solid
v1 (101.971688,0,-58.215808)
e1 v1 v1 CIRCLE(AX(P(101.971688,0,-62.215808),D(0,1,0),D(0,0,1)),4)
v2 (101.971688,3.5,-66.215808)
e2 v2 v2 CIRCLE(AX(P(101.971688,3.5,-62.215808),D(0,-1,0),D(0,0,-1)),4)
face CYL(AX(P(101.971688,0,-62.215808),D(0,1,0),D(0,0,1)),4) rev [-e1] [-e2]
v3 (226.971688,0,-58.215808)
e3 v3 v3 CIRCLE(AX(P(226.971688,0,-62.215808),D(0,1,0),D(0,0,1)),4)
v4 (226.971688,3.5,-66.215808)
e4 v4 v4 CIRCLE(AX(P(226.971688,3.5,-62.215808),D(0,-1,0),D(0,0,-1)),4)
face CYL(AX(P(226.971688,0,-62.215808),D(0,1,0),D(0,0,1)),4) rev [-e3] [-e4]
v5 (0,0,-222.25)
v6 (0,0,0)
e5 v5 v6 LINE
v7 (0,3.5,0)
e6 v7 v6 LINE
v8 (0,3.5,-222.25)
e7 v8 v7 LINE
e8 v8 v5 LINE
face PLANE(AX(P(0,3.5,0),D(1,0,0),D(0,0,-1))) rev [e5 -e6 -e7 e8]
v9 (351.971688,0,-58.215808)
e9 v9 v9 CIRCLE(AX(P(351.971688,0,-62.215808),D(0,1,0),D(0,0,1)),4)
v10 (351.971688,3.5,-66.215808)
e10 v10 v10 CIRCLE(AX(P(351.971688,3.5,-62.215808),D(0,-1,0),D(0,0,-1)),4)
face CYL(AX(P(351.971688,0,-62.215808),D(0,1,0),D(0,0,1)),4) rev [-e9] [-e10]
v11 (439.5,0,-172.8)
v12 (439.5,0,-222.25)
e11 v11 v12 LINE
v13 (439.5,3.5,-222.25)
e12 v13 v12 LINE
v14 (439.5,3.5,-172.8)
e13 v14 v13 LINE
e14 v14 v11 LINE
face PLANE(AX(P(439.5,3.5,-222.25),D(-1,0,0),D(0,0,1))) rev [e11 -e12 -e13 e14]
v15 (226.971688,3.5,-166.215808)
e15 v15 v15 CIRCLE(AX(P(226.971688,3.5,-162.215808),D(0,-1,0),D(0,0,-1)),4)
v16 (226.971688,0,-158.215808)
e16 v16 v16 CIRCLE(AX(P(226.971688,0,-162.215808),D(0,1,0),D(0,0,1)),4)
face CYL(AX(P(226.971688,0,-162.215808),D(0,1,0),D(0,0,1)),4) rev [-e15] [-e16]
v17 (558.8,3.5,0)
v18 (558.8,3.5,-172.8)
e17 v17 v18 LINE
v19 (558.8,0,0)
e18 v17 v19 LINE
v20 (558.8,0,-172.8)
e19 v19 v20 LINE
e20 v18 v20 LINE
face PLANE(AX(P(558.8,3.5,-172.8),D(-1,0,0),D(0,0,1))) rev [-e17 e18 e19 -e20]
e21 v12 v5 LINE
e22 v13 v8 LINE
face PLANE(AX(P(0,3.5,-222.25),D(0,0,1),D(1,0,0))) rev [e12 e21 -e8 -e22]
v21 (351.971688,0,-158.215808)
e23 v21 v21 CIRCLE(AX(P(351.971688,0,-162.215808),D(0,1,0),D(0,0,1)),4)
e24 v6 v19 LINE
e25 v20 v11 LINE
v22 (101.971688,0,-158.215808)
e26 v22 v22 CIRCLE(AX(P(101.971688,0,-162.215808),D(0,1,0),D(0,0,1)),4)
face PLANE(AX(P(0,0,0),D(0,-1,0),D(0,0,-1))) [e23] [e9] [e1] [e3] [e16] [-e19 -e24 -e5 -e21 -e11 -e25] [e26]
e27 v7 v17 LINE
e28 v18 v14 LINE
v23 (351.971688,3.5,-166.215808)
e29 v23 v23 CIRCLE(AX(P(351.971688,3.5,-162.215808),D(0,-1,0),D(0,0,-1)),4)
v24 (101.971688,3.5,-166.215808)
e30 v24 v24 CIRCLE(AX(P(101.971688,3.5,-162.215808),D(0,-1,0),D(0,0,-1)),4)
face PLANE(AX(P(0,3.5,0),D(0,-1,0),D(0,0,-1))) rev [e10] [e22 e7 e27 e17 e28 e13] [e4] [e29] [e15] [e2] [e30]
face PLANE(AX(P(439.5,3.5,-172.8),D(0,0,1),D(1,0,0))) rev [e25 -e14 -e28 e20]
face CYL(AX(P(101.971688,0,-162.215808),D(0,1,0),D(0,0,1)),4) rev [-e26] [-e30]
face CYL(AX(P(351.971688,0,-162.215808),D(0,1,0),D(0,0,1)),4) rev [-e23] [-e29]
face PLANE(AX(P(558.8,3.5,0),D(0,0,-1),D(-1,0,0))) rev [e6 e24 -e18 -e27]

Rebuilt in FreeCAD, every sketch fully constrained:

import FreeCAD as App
import Part
import Sketcher

doc = App.newDocument("Part")
body = doc.addObject("PartDesign::Body", "Body")

# Sketch on XZ plane
sketch1 = body.newObject("Sketcher::SketchObject", "Sketch")
sketch1.AttachmentSupport = (doc.getObject("XZ_Plane"), [""])
sketch1.MapMode = "FlatFace"
sketch1.addGeometry([
    Part.LineSegment(App.Vector(0, -222, 0), App.Vector(0, 0, 0)),  # 0
    Part.LineSegment(App.Vector(0, 0, 0), App.Vector(559, 0, 0)),  # 1
    Part.LineSegment(App.Vector(559, 0, 0), App.Vector(559, -173, 0)),  # 2
    Part.LineSegment(App.Vector(559, -173, 0), App.Vector(440, -173, 0)),  # 3
    Part.LineSegment(App.Vector(440, -173, 0), App.Vector(440, -222, 0)),  # 4
    Part.LineSegment(App.Vector(440, -222, 0), App.Vector(0, -222, 0)),  # 5
], False)
sketch1.addConstraint([
    Sketcher.Constraint("Coincident", 0, 2, 1, 1),
    Sketcher.Constraint("Coincident", 1, 2, 2, 1),
    Sketcher.Constraint("Coincident", 2, 2, 3, 1),
    Sketcher.Constraint("Coincident", 3, 2, 4, 1),
    Sketcher.Constraint("Coincident", 4, 2, 5, 1),
    Sketcher.Constraint("Coincident", 5, 2, 0, 1),
    Sketcher.Constraint("Vertical", 0),
    Sketcher.Constraint("Horizontal", 1),
    Sketcher.Constraint("Vertical", 2),
    Sketcher.Constraint("Horizontal", 3),
    Sketcher.Constraint("Vertical", 4),
    Sketcher.Constraint("Horizontal", 5),
    Sketcher.Constraint("Coincident", 0, 2, -1, 1),
    Sketcher.Constraint("DistanceX", 1, 1, 1, 2, 558.8),
    Sketcher.Constraint("DistanceX", 3, 2, 3, 1, 119.3),
    Sketcher.Constraint("DistanceY", 2, 2, 2, 1, 172.8),
    Sketcher.Constraint("DistanceY", 0, 1, 0, 2, 222.25),
])
pad1 = body.newObject("PartDesign::Pad", "Pad")
pad1.Profile = sketch1
pad1.Length = 3.5
pad1.Reversed = True

# Sketch on XZ plane
sketch2 = body.newObject("Sketcher::SketchObject", "Sketch001")
sketch2.AttachmentSupport = (doc.getObject("XZ_Plane"), [""])
sketch2.MapMode = "FlatFace"
sketch2.AttachmentOffset = App.Placement(App.Vector(0, 0, -3.5), App.Rotation())
sketch2.addGeometry([
    Part.Circle(App.Vector(102, -162.2, 0), App.Vector(0, 0, 1), 4),  # 0
    Part.Circle(App.Vector(227, -162.2, 0), App.Vector(0, 0, 1), 4),  # 1
    Part.Circle(App.Vector(352, -162.2, 0), App.Vector(0, 0, 1), 4),  # 2
    Part.Circle(App.Vector(352, -62.2, 0), App.Vector(0, 0, 1), 4),  # 3
    Part.Circle(App.Vector(227, -62.2, 0), App.Vector(0, 0, 1), 4),  # 4
    Part.Circle(App.Vector(102, -62.2, 0), App.Vector(0, 0, 1), 4),  # 5
], False)
sketch2.addConstraint([
    Sketcher.Constraint("Equal", 0, 1),
    Sketcher.Constraint("Equal", 1, 2),
    Sketcher.Constraint("Equal", 2, 3),
    Sketcher.Constraint("Equal", 3, 4),
    Sketcher.Constraint("Equal", 4, 5),
    Sketcher.Constraint("Horizontal", 0, 3, 1, 3),
    Sketcher.Constraint("Horizontal", 1, 3, 2, 3),
    Sketcher.Constraint("Horizontal", 3, 3, 4, 3),
    Sketcher.Constraint("Horizontal", 4, 3, 5, 3),
    Sketcher.Constraint("Vertical", 2, 3, 3, 3),
    Sketcher.Constraint("Vertical", 1, 3, 4, 3),
    Sketcher.Constraint("Vertical", 0, 3, 5, 3),
    Sketcher.Constraint("Diameter", 0, 8.0),
    Sketcher.Constraint("DistanceX", 0, 3, 1, 3, 125.0),
    Sketcher.Constraint("DistanceX", 1, 3, 2, 3, 125.0),
    Sketcher.Constraint("DistanceY", 2, 3, 3, 3, 100.0),
    Sketcher.Constraint("DistanceY", 0, 3, -1, 1, 162.215808),
    Sketcher.Constraint("DistanceX", -1, 1, 0, 3, 101.971688),
])
pocket1 = body.newObject("PartDesign::Pocket", "Pocket")
pocket1.Profile = sketch2
pocket1.Type = "ThroughAll"
pocket1.Midplane = True

doc.recompute()
